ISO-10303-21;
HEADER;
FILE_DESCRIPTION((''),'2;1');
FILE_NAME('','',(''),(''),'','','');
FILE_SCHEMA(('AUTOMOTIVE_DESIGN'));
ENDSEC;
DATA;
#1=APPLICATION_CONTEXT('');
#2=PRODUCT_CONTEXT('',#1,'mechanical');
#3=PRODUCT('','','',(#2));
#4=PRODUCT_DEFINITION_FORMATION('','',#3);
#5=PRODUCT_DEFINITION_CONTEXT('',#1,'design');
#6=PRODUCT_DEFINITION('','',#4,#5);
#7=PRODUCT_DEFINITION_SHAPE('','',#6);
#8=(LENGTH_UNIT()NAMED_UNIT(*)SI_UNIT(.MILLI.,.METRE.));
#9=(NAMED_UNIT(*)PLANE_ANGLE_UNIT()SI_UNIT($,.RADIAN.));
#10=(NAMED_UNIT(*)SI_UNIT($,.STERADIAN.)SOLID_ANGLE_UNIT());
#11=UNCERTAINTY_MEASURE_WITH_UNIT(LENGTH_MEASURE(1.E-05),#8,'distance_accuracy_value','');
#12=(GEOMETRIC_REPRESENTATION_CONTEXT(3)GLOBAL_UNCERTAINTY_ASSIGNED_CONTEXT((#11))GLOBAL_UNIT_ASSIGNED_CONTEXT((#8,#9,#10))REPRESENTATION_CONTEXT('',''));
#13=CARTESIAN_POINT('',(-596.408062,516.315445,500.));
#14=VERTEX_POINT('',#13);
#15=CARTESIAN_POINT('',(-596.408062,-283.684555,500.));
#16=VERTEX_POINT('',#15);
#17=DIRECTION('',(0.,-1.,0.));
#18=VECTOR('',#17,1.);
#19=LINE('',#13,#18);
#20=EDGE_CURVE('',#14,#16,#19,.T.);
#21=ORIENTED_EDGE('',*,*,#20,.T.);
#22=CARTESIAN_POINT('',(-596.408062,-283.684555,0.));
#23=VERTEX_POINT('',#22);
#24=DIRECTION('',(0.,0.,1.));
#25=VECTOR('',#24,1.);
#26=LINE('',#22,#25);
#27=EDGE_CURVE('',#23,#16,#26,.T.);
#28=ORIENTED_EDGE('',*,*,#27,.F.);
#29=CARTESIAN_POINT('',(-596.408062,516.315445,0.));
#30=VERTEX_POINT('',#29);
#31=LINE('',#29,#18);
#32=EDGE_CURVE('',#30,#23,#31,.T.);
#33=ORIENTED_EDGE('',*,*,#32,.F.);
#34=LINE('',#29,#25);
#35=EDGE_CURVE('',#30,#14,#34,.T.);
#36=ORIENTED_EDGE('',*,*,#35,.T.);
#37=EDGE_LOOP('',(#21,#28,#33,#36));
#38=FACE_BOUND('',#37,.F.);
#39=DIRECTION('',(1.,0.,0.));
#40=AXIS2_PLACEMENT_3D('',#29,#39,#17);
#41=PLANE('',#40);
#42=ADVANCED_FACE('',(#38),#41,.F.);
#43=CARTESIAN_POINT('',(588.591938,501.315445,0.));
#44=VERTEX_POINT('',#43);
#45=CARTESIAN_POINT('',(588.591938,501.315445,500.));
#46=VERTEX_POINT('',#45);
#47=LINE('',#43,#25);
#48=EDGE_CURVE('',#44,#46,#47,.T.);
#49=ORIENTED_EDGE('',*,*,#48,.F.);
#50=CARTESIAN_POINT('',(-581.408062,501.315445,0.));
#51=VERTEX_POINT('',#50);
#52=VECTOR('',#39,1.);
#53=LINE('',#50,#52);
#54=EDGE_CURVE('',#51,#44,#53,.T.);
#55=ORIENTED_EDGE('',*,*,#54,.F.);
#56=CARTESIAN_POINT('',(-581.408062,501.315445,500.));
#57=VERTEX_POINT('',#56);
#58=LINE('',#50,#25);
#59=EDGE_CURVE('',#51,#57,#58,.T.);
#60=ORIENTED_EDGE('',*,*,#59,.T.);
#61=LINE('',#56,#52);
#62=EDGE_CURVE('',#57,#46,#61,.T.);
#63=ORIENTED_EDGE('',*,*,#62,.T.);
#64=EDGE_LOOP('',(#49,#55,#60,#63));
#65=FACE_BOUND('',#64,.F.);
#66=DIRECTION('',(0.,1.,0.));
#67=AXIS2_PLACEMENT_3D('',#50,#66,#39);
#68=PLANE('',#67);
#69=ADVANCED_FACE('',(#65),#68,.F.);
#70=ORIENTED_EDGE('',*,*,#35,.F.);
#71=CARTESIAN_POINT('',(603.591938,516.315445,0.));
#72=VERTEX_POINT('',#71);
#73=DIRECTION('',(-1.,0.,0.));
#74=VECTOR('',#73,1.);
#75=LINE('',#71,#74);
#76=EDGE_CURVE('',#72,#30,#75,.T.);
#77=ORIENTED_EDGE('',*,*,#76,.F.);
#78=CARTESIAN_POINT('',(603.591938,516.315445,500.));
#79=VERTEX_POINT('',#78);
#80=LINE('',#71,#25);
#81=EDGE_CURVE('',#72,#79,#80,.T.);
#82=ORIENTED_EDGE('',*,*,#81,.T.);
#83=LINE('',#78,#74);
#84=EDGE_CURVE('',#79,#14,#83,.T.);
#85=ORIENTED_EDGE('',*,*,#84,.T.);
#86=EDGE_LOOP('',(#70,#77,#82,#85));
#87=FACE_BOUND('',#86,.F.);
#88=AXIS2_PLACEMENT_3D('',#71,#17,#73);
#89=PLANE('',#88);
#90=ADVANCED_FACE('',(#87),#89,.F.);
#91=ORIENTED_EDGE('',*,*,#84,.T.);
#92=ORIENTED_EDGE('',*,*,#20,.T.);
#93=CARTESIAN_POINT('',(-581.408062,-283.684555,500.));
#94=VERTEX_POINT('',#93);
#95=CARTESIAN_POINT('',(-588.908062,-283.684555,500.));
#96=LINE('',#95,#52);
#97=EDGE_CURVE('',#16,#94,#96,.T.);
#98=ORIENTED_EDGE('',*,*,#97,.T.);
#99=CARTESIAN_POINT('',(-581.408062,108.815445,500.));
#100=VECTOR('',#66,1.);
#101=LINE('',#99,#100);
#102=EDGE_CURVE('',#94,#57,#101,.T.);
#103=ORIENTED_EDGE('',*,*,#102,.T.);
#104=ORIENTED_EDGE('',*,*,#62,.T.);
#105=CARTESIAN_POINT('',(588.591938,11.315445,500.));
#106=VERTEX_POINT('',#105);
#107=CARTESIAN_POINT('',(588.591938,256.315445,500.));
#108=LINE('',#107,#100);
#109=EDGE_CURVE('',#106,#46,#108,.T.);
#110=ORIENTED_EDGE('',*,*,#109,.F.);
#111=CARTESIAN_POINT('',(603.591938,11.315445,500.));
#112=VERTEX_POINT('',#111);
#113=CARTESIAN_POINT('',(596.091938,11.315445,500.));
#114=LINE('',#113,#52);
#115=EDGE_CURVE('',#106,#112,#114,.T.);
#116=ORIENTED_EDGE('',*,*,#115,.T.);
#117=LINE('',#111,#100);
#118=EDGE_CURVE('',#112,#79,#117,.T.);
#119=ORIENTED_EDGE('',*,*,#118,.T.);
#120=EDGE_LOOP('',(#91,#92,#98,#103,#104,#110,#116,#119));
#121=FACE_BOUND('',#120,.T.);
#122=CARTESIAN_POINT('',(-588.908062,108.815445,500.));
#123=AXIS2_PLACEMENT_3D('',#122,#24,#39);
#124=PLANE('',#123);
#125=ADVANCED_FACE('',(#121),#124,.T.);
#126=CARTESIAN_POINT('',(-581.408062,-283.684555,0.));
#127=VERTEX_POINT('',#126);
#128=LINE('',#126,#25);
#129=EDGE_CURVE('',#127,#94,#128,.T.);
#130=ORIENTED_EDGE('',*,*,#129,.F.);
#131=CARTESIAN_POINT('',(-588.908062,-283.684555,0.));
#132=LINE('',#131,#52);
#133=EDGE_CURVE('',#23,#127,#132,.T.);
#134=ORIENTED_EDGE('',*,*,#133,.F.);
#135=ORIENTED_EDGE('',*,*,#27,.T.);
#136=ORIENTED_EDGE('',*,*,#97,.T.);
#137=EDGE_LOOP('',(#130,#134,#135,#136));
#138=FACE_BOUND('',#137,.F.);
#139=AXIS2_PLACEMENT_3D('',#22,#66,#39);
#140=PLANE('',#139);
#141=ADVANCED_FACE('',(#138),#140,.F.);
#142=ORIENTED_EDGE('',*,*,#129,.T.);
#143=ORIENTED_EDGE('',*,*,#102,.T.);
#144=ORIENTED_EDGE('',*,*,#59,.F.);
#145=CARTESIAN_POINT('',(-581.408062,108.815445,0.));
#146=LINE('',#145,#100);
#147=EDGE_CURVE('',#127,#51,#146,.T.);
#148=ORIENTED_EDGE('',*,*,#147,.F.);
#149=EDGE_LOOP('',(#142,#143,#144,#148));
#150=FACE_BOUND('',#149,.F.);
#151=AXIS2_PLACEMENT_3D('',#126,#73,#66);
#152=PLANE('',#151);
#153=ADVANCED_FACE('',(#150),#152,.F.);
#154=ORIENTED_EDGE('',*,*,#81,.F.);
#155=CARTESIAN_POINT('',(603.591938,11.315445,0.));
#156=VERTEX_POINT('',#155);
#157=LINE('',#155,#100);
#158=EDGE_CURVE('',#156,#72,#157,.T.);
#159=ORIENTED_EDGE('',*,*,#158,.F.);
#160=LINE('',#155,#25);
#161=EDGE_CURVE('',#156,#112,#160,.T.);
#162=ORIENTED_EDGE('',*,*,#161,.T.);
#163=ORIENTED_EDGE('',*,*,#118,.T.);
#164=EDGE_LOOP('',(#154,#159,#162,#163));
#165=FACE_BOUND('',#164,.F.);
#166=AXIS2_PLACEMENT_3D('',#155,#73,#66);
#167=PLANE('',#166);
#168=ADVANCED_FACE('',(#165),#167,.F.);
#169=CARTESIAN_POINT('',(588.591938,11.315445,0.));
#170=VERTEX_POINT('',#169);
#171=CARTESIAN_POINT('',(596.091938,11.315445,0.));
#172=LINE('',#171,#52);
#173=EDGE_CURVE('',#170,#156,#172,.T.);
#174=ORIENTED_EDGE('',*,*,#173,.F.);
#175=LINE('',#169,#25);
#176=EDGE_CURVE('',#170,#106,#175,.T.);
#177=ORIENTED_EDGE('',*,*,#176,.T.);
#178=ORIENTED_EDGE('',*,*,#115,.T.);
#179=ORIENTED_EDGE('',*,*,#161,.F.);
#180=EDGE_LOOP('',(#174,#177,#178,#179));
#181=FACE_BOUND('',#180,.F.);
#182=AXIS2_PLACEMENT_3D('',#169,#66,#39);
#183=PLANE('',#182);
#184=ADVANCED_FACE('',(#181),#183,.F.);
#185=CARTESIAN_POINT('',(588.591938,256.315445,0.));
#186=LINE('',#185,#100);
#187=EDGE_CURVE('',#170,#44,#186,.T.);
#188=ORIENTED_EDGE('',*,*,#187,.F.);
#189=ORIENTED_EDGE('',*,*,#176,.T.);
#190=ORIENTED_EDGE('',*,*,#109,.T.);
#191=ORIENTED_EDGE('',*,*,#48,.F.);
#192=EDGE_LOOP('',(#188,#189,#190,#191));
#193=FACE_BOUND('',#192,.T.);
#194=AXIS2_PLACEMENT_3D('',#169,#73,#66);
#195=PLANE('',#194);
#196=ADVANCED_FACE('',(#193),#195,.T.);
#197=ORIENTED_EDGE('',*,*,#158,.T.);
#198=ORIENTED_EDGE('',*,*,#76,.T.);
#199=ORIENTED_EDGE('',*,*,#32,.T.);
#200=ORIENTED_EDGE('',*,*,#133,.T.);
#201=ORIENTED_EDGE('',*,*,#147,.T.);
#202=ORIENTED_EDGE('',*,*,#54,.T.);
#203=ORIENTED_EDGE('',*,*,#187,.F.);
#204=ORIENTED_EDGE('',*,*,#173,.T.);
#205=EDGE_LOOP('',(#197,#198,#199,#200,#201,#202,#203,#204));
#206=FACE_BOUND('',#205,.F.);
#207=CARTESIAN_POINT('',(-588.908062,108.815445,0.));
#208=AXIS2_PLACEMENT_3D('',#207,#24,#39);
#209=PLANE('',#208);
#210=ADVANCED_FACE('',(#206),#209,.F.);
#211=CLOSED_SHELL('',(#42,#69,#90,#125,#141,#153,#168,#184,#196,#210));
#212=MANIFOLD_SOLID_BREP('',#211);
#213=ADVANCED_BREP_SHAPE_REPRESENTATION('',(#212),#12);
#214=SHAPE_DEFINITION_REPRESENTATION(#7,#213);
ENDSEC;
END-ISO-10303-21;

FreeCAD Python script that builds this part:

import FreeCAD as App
import Part
import Sketcher
from FreeCAD import Vector
Q = App.Units.Quantity


def add_polygon(sketch, points):
    """Adds a closed chain of lines whose ends are joined by coincident constraints."""
    first, n = sketch.GeometryCount, len(points)
    for a, b in zip(points, points[1:] + points[:1]):
        sketch.addGeometry(Part.LineSegment(App.Vector(*a, 0), App.Vector(*b, 0)), False)
    for i in range(n):
        sketch.addConstraint(Sketcher.Constraint("Coincident", first + i, 2, first + (i + 1) % n, 1))

doc = App.newDocument("Part")
body = doc.addObject("PartDesign::Body", "Body")

sketch1 = body.newObject("Sketcher::SketchObject", "Sketch")
sketch1.AttachmentSupport = (doc.getObject("XY_Plane"), [""])
sketch1.MapMode = "FlatFace"
add_polygon(sketch1, [(-596.408062, -283.684555), (-581.408062, -283.684555), (-581.408062, 501.315445), (588.591938, 501.315445), (588.591938, 11.315445), (603.591938, 11.315445), (603.591938, 516.315445), (-596.408062, 516.315445)])
sketch1.addConstraint(Sketcher.Constraint("Horizontal", 0))
sketch1.addConstraint(Sketcher.Constraint("Vertical", 1))
sketch1.addConstraint(Sketcher.Constraint("Horizontal", 2))
sketch1.addConstraint(Sketcher.Constraint("Vertical", 3))
sketch1.addConstraint(Sketcher.Constraint("Horizontal", 4))
sketch1.addConstraint(Sketcher.Constraint("Vertical", 5))
sketch1.addConstraint(Sketcher.Constraint("Horizontal", 6))
sketch1.addConstraint(Sketcher.Constraint("Vertical", 7))
sketch1.addConstraint(Sketcher.Constraint("Equal", 0, 4))
sketch1.addConstraint(Sketcher.Constraint("DistanceX", 0, 1, 0, 2, Q("15 mm")))
sketch1.addConstraint(Sketcher.Constraint("DistanceX", 2, 1, 2, 2, Q("1170 mm")))
sketch1.addConstraint(Sketcher.Constraint("DistanceY", 1, 1, 1, 2, Q("785 mm")))
sketch1.addConstraint(Sketcher.Constraint("DistanceY", 3, 2, 3, 1, Q("490 mm")))
sketch1.addConstraint(Sketcher.Constraint("DistanceY", 5, 1, 5, 2, Q("505 mm")))
sketch1.addConstraint(Sketcher.Constraint("DistanceX", 0, 2, -1, 1, Q("581.408062 mm")))
sketch1.addConstraint(Sketcher.Constraint("DistanceY", 0, 2, -1, 1, Q("283.684555 mm")))
pad1 = body.newObject("PartDesign::Pad", "Pad")
pad1.Profile = sketch1
pad1.Length = 500

doc.recompute()
